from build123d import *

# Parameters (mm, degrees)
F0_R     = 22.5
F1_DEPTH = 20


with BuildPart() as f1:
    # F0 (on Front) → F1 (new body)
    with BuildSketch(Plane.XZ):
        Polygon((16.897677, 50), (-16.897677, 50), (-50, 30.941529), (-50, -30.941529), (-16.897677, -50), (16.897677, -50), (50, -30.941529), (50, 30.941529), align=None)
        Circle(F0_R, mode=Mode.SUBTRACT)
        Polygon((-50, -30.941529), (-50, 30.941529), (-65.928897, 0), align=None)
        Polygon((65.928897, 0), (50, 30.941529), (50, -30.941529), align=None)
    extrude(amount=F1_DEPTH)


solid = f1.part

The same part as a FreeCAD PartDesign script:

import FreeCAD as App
import Part
import Sketcher

V = App.Vector


def add_polygon(sketch, points):
    """Adds a closed chain of lines whose ends are joined by coincident constraints."""
    first, n = sketch.GeometryCount, len(points)
    for a, b in zip(points, points[1:] + points[:1]):
        sketch.addGeometry(Part.LineSegment(App.Vector(*a, 0), App.Vector(*b, 0)), False)
    for i in range(n):
        sketch.addConstraint(Sketcher.Constraint("Coincident", first + i, 2, first + (i + 1) % n, 1))

doc = App.newDocument("Part")
body = doc.addObject("PartDesign::Body", "Body")

sketch1 = body.newObject("Sketcher::SketchObject", "Sketch")
sketch1.AttachmentSupport = (doc.getObject("XZ_Plane"), [""])
sketch1.MapMode = "FlatFace"
add_polygon(sketch1, [(17, 50), (-17, 50), (-50, 31), (-66, 0), (-50, -31), (-17, -50), (17, -50), (50, -31), (66, 0), (50, 31)])
sketch1.addGeometry(Part.Circle(V(0, 0, 0), V(0, 0, 1), 22), False)
sketch1.addConstraint([
    Sketcher.Constraint("Horizontal", 0),
    Sketcher.Constraint("Horizontal", 5),
    Sketcher.Constraint("Coincident", 10, 3, -1, 1),
    Sketcher.Constraint("Symmetric", 0, 2, 5, 2, -1, 1),
    Sketcher.Constraint("Symmetric", 1, 2, 6, 2, -1, 1),
    Sketcher.Constraint("Symmetric", 2, 2, 7, 2, -1, 1),
    Sketcher.Constraint("Symmetric", 3, 2, 8, 2, -1, 1),
    Sketcher.Constraint("Symmetric", 3, 2, 6, 2, -2),
    Sketcher.Constraint("PointOnObject", 2, 2, -1),
    Sketcher.Constraint("Parallel", 4, 9),
    Sketcher.Constraint("Vertical", 0, 2, 4, 2),
    Sketcher.Constraint("Diameter", 10, 45.0),
    Sketcher.Constraint("DistanceY", -1, 1, 0, 2, 50.0),
    Sketcher.Constraint("DistanceX", 1, 2, -1, 1, 50.0),
    Sketcher.Constraint("DistanceX", 0, 2, 0, 1, 33.795354),
    Sketcher.Constraint("DistanceY", -1, 1, 1, 2, 30.941529),
    Sketcher.Constraint("DistanceX", 2, 2, 0, 2, 49.03122),
])
pad1 = body.newObject("PartDesign::Pad", "Pad")
pad1.Profile = sketch1
pad1.Length = 20

doc.recompute()
